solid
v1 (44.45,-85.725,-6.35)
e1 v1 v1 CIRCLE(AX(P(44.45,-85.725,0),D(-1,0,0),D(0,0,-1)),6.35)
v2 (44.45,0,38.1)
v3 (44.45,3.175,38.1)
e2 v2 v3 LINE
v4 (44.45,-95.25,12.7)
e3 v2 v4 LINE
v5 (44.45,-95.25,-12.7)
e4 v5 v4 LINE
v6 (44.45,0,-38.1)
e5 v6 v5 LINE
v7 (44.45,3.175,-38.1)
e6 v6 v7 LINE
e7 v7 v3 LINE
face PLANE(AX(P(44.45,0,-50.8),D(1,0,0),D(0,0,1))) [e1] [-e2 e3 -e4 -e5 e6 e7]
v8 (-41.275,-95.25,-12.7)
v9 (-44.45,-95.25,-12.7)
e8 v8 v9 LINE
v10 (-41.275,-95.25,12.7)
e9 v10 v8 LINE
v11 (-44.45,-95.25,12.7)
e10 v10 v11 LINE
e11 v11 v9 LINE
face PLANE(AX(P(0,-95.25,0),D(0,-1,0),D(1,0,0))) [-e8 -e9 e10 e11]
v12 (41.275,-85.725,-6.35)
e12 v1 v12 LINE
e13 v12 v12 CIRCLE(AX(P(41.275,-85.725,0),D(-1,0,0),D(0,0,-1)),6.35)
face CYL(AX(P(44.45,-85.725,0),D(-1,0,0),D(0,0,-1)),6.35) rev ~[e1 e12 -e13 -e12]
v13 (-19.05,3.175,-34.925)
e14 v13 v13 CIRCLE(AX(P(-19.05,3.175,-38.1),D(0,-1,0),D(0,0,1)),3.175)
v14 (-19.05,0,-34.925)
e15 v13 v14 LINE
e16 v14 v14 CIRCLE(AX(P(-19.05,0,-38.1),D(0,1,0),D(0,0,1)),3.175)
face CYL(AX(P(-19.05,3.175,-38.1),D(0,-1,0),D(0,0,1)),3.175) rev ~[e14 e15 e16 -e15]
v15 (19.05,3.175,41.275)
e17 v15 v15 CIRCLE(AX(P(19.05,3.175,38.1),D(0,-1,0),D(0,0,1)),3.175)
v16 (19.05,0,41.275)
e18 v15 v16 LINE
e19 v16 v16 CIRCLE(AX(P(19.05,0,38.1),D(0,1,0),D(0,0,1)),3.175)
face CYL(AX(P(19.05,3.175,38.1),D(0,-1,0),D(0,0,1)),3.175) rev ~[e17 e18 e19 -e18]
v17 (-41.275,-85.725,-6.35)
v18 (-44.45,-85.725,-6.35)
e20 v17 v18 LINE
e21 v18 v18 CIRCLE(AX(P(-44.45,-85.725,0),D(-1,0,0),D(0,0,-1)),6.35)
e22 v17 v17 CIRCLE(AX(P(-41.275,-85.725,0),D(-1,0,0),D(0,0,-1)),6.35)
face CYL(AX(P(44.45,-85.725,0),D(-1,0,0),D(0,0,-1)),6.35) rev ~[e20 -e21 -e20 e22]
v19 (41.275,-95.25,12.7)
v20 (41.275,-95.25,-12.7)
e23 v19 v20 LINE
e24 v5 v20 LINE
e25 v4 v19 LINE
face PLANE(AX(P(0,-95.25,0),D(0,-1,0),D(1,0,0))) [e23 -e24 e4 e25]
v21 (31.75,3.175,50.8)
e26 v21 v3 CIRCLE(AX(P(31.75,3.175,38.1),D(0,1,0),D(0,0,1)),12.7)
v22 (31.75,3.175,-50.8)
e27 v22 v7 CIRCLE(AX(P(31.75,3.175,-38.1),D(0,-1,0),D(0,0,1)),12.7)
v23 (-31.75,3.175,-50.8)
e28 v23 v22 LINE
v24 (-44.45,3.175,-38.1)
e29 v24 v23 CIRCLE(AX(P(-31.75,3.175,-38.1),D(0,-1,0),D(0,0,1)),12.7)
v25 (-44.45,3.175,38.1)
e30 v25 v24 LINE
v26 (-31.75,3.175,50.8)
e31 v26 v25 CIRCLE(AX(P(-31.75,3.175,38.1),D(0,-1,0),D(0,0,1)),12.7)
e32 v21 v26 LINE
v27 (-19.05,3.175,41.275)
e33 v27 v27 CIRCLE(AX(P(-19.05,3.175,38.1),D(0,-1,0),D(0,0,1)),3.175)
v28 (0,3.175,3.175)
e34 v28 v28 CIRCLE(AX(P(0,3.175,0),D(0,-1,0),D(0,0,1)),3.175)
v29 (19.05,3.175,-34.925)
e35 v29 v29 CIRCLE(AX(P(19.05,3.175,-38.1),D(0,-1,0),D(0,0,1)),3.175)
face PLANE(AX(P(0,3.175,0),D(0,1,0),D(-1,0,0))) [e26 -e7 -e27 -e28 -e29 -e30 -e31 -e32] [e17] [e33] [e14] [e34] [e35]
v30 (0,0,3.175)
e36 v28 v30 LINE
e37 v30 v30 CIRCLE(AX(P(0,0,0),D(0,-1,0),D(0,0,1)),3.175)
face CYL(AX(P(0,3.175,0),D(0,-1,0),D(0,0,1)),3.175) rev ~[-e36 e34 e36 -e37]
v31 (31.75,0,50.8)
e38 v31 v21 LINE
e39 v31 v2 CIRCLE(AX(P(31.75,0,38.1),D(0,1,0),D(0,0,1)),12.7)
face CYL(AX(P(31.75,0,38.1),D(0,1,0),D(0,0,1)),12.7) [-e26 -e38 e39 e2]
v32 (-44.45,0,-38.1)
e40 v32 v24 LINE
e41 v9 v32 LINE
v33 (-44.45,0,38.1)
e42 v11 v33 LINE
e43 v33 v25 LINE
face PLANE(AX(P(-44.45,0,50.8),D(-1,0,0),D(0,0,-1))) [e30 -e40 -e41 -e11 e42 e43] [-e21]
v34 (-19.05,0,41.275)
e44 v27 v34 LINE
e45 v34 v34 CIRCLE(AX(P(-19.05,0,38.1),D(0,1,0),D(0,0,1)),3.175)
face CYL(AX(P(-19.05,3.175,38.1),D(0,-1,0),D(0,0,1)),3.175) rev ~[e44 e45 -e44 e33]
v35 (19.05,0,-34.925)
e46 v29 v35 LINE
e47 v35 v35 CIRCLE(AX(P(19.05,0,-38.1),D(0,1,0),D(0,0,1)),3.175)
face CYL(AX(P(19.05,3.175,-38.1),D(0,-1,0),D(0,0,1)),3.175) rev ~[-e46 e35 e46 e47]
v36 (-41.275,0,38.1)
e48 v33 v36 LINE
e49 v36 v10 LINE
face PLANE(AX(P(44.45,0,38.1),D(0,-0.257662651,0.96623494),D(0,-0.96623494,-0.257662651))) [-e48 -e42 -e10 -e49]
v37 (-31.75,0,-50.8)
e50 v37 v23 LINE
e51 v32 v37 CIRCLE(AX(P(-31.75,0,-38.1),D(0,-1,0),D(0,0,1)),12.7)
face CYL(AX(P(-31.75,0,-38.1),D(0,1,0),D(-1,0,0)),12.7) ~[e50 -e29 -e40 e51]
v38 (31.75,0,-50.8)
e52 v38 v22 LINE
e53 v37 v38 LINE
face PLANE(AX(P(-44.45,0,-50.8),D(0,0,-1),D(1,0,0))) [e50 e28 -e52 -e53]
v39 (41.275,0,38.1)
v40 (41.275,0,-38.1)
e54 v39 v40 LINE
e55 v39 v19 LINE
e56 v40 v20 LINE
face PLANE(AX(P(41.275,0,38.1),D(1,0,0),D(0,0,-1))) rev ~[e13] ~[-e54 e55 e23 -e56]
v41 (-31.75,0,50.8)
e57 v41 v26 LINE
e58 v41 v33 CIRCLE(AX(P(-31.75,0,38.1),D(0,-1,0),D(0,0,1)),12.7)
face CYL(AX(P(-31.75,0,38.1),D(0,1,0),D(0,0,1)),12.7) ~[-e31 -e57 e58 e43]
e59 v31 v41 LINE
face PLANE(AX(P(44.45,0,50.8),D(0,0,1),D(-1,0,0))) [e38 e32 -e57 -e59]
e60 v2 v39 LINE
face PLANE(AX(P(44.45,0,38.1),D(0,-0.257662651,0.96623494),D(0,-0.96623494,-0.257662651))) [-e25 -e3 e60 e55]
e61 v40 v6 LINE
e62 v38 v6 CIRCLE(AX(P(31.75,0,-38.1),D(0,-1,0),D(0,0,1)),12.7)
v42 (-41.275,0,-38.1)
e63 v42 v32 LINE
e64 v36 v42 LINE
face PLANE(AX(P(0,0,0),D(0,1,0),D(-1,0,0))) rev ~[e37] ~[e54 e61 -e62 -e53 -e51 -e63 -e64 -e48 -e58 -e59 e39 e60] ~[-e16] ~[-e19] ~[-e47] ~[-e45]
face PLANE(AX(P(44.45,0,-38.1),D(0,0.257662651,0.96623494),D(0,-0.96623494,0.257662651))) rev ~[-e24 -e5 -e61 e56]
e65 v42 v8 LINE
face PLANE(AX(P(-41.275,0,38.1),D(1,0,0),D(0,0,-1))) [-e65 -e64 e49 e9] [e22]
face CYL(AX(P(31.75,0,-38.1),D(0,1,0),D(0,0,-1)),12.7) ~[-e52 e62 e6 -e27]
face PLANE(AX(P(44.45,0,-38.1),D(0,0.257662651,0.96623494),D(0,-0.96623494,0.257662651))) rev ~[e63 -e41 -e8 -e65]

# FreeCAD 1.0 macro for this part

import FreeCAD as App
import Part
import Sketcher
from FreeCAD import Vector
Q = App.Units.Quantity


def edges_at(feature, points):
    """Names of the edges that pass closest to the given points."""
    edges = feature.Shape.Edges
    near = lambda p: min(range(len(edges)), key=lambda i: edges[i].distToShape(Part.Vertex(*p))[0])
    return sorted({f"Edge{near(p) + 1}" for p in points})

doc = App.newDocument("Part")
body = doc.addObject("PartDesign::Body", "Body")

sketch1 = body.newObject("Sketcher::SketchObject", "Sketch")
sketch1.AttachmentSupport = (doc.getObject("XZ_Plane"), [""])
sketch1.MapMode = "FlatFace"
sketch1.addGeometry(Part.LineSegment(Vector(-44.45, 50.8, 0), Vector(44.45, 50.8, 0)), False)
sketch1.addGeometry(Part.LineSegment(Vector(44.45, 50.8, 0), Vector(44.45, -50.8, 0)), False)
sketch1.addGeometry(Part.LineSegment(Vector(44.45, -50.8, 0), Vector(-44.45, -50.8, 0)), False)
sketch1.addGeometry(Part.LineSegment(Vector(-44.45, -50.8, 0), Vector(-44.45, 50.8, 0)), False)
sketch1.addConstraint(Sketcher.Constraint("Coincident", 0, 2, 1, 1))
sketch1.addConstraint(Sketcher.Constraint("Coincident", 1, 2, 2, 1))
sketch1.addConstraint(Sketcher.Constraint("Coincident", 2, 2, 3, 1))
sketch1.addConstraint(Sketcher.Constraint("Coincident", 3, 2, 0, 1))
sketch1.addConstraint(Sketcher.Constraint("Horizontal", 0))
sketch1.addConstraint(Sketcher.Constraint("Vertical", 1))
sketch1.addConstraint(Sketcher.Constraint("Horizontal", 2))
sketch1.addConstraint(Sketcher.Constraint("Vertical", 3))
sketch1.addConstraint(Sketcher.Constraint("Symmetric", 0, 2, 2, 2, -1, 1))
sketch1.addConstraint(Sketcher.Constraint("DistanceY", -1, 1, 0, 2, Q("2 in")))
sketch1.addConstraint(Sketcher.Constraint("DistanceX", -1, 1, 0, 2, Q("1.75 in")))
pad1 = body.newObject("PartDesign::Pad", "Pad")
pad1.Profile = sketch1
pad1.Length = Q("0.125 in")
pad1.Reversed = True
doc.recompute()

fillet = body.newObject("PartDesign::Fillet", "Fillet")
fillet.Base = (pad1, edges_at(pad1, [
    (44.45, 1.587, 50.8),
    (-44.45, 1.587, 50.8),
    (44.45, 1.587, -50.8),
    (-44.45, 1.587, -50.8),
]))
fillet.Radius = Q("0.5 in")

sketch2 = body.newObject("Sketcher::SketchObject", "Sketch001")
sketch2.AttachmentSupport = (doc.getObject("XZ_Plane"), [""])
sketch2.MapMode = "FlatFace"
sketch2.AttachmentOffset = App.Placement(Vector(0, 0, -0.125 * 25.4), App.Rotation())
sketch2.addGeometry(Part.Circle(Vector(-19.05, -38.1, 0), Vector(0, 0, 1), 3.175), False)
sketch2.addGeometry(Part.Circle(Vector(19.05, -38.1, 0), Vector(0, 0, 1), 3.175), False)
sketch2.addGeometry(Part.Circle(Vector(19.05, 38.1, 0), Vector(0, 0, 1), 3.175), False)
sketch2.addGeometry(Part.Circle(Vector(-19.05, 38.1, 0), Vector(0, 0, 1), 3.175), False)
sketch2.addGeometry(Part.Circle(Vector(0, 0, 0), Vector(0, 0, 1), 3.175), False)
sketch2.addConstraint(Sketcher.Constraint("Coincident", 4, 3, -1, 1))
sketch2.addConstraint(Sketcher.Constraint("Equal", 0, 1))
sketch2.addConstraint(Sketcher.Constraint("Equal", 1, 2))
sketch2.addConstraint(Sketcher.Constraint("Equal", 2, 3))
sketch2.addConstraint(Sketcher.Constraint("Equal", 3, 4))
sketch2.addConstraint(Sketcher.Constraint("Symmetric", 0, 3, 2, 3, -1, 1))
sketch2.addConstraint(Sketcher.Constraint("Symmetric", 1, 3, 3, 3, -1, 1))
sketch2.addConstraint(Sketcher.Constraint("Symmetric", 0, 3, 1, 3, -2))
sketch2.addConstraint(Sketcher.Constraint("Diameter", 0, Q("0.25 in")))
sketch2.addConstraint(Sketcher.Constraint("DistanceY", 1, 3, 2, 3, Q("3 in")))
sketch2.addConstraint(Sketcher.Constraint("DistanceX", 0, 3, 1, 3, Q("1.5 in")))
doc.recompute()
hole = body.newObject("PartDesign::Hole", "Hole")
hole.Profile = sketch2
hole.ThreadType = "None"
hole.Diameter = Q("0.25 in")
hole.DepthType = "ThroughAll"
hole.Reversed = True

sketch3 = body.newObject("Sketcher::SketchObject", "Sketch002")
sketch3.AttachmentSupport = (doc.getObject("XZ_Plane"), [""])
sketch3.MapMode = "FlatFace"
sketch3.addGeometry(Part.LineSegment(Vector(41.275, -38.1, 0), Vector(44.45, -38.1, 0)), False)
sketch3.addGeometry(Part.LineSegment(Vector(44.45, -38.1, 0), Vector(44.45, 38.1, 0)), False)
sketch3.addGeometry(Part.LineSegment(Vector(44.45, 38.1, 0), Vector(41.275, 38.1, 0)), False)
sketch3.addGeometry(Part.LineSegment(Vector(41.275, 38.1, 0), Vector(41.275, -38.1, 0)), False)
sketch3.addGeometry(Part.LineSegment(Vector(-41.275, 38.1, 0), Vector(-44.45, 38.1, 0)), False)
sketch3.addGeometry(Part.LineSegment(Vector(-44.45, 38.1, 0), Vector(-44.45, -38.1, 0)), False)
sketch3.addGeometry(Part.LineSegment(Vector(-44.45, -38.1, 0), Vector(-41.275, -38.1, 0)), False)
sketch3.addGeometry(Part.LineSegment(Vector(-41.275, -38.1, 0), Vector(-41.275, 38.1, 0)), False)
sketch3.addConstraint(Sketcher.Constraint("Coincident", 0, 2, 1, 1))
sketch3.addConstraint(Sketcher.Constraint("Coincident", 1, 2, 2, 1))
sketch3.addConstraint(Sketcher.Constraint("Coincident", 2, 2, 3, 1))
sketch3.addConstraint(Sketcher.Constraint("Coincident", 3, 2, 0, 1))
sketch3.addConstraint(Sketcher.Constraint("Coincident", 4, 2, 5, 1))
sketch3.addConstraint(Sketcher.Constraint("Coincident", 5, 2, 6, 1))
sketch3.addConstraint(Sketcher.Constraint("Coincident", 6, 2, 7, 1))
sketch3.addConstraint(Sketcher.Constraint("Coincident", 7, 2, 4, 1))
sketch3.addConstraint(Sketcher.Constraint("Horizontal", 0))
sketch3.addConstraint(Sketcher.Constraint("Vertical", 1))
sketch3.addConstraint(Sketcher.Constraint("Horizontal", 2))
sketch3.addConstraint(Sketcher.Constraint("Vertical", 3))
sketch3.addConstraint(Sketcher.Constraint("Horizontal", 4))
sketch3.addConstraint(Sketcher.Constraint("Vertical", 5))
sketch3.addConstraint(Sketcher.Constraint("Horizontal", 6))
sketch3.addConstraint(Sketcher.Constraint("Vertical", 7))
sketch3.addConstraint(Sketcher.Constraint("Symmetric", 0, 2, 4, 2, -1, 1))
sketch3.addConstraint(Sketcher.Constraint("Symmetric", 2, 2, 6, 2, -1, 1))
sketch3.addConstraint(Sketcher.Constraint("Horizontal", 2, 2, 4, 2))
sketch3.addConstraint(Sketcher.Constraint("DistanceY", 1, 1, 1, 2, Q("3 in")))
sketch3.addConstraint(Sketcher.Constraint("DistanceX", 0, 1, 0, 2, Q("0.125 in")))
sketch3.addConstraint(Sketcher.Constraint("DistanceX", 4, 2, 1, 2, Q("3.5 in")))
pad2 = body.newObject("PartDesign::Pad", "Pad001")
pad2.Profile = sketch3
pad2.Length = Q("3.75 in")

sketch4 = body.newObject("Sketcher::SketchObject", "Sketch003")
sketch4.AttachmentSupport = (doc.getObject("YZ_Plane"), [""])
sketch4.MapMode = "FlatFace"
sketch4.AttachmentOffset = App.Placement(Vector(0, 0, 1.75 * 25.4), App.Rotation())
sketch4.addGeometry(Part.LineSegment(Vector(-95.25, 12.7, 0), Vector(0, 38.1, 0)), False)
sketch4.addGeometry(Part.LineSegment(Vector(0, 38.1, 0), Vector(-95.25, 38.1, 0)), False)
sketch4.addGeometry(Part.LineSegment(Vector(-95.25, 38.1, 0), Vector(-95.25, 12.7, 0)), False)
sketch4.addGeometry(Part.LineSegment(Vector(-95.25, -38.1, 0), Vector(0, -38.1, 0)), False)
sketch4.addGeometry(Part.LineSegment(Vector(0, -38.1, 0), Vector(-95.25, -12.7, 0)), False)
sketch4.addGeometry(Part.LineSegment(Vector(-95.25, -12.7, 0), Vector(-95.25, -38.1, 0)), False)
sketch4.addConstraint(Sketcher.Constraint("Coincident", 0, 2, 1, 1))
sketch4.addConstraint(Sketcher.Constraint("Coincident", 1, 2, 2, 1))
sketch4.addConstraint(Sketcher.Constraint("Coincident", 2, 2, 0, 1))
sketch4.addConstraint(Sketcher.Constraint("Coincident", 3, 2, 4, 1))
sketch4.addConstraint(Sketcher.Constraint("Coincident", 4, 2, 5, 1))
sketch4.addConstraint(Sketcher.Constraint("Coincident", 5, 2, 3, 1))
sketch4.addConstraint(Sketcher.Constraint("Horizontal", 1))
sketch4.addConstraint(Sketcher.Constraint("Vertical", 2))
sketch4.addConstraint(Sketcher.Constraint("Horizontal", 3))
sketch4.addConstraint(Sketcher.Constraint("Vertical", 5))
sketch4.addConstraint(Sketcher.Constraint("Symmetric", 0, 2, 3, 2, -1, 1))
sketch4.addConstraint(Sketcher.Constraint("Symmetric", 2, 2, 4, 2, -1))
sketch4.addConstraint(Sketcher.Constraint("PointOnObject", 0, 2, -2))
sketch4.addConstraint(Sketcher.Constraint("DistanceY", 2, 2, 2, 1, Q("1 in")))
sketch4.addConstraint(Sketcher.Constraint("DistanceY", 3, 2, 0, 2, Q("3 in")))
sketch4.addConstraint(Sketcher.Constraint("DistanceX", 1, 2, 1, 1, Q("3.75 in")))
pocket1 = body.newObject("PartDesign::Pocket", "Pocket")
pocket1.Profile = sketch4
pocket1.Length = Q("5 in")

sketch5 = body.newObject("Sketcher::SketchObject", "Sketch004")
sketch5.AttachmentSupport = (doc.getObject("YZ_Plane"), [""])
sketch5.MapMode = "FlatFace"
sketch5.AttachmentOffset = App.Placement(Vector(0, 0, 1.75 * 25.4), App.Rotation())
sketch5.addGeometry(Part.Circle(Vector(-85.725, 0, 0), Vector(0, 0, 1), 6.35), False)
sketch5.addConstraint(Sketcher.Constraint("PointOnObject", 0, 3, -1))
sketch5.addConstraint(Sketcher.Constraint("Diameter", 0, Q("0.5 in")))
sketch5.addConstraint(Sketcher.Constraint("DistanceX", 0, 3, -1, 1, Q("3.375 in")))
doc.recompute()
hole2 = body.newObject("PartDesign::Hole", "Hole001")
hole2.Profile = sketch5
hole2.ThreadType = "None"
hole2.Diameter = Q("0.5 in")
hole2.DepthType = "ThroughAll"

doc.recompute()
